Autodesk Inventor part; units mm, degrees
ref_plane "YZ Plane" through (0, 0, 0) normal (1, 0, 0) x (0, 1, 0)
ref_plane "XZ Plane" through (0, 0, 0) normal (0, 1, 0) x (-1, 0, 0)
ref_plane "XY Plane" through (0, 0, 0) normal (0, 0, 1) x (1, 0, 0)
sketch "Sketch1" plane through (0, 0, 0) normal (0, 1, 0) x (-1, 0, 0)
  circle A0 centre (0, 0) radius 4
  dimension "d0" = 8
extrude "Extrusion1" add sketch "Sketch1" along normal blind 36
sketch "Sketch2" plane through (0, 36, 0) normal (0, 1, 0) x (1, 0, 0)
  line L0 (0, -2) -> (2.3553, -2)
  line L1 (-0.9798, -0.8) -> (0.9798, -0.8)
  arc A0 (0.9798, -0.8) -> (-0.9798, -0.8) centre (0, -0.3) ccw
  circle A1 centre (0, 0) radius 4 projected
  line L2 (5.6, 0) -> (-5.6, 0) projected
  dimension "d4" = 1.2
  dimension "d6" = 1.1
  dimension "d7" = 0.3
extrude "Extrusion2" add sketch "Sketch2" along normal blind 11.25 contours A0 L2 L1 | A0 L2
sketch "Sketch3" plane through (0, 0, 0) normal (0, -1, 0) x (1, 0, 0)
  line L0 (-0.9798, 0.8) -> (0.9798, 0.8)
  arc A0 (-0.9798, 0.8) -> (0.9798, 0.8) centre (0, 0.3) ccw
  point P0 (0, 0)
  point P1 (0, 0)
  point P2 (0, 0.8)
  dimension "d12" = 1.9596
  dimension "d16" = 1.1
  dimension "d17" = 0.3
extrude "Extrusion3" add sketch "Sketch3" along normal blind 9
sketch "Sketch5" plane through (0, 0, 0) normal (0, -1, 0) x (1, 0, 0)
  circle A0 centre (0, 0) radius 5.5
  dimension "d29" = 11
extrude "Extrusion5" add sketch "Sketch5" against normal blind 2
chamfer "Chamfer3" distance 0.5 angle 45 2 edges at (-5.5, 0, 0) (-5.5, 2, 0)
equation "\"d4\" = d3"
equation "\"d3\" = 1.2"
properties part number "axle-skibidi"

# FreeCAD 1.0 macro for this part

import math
import FreeCAD as App
import Part
import Sketcher

V = App.Vector


def edges_at(feature, points):
    """Names of the edges that pass closest to the given points."""
    edges = feature.Shape.Edges
    near = lambda p: min(range(len(edges)), key=lambda i: edges[i].distToShape(Part.Vertex(*p))[0])
    return sorted({f"Edge{near(p) + 1}" for p in points})

doc = App.newDocument("Part")
body = doc.addObject("PartDesign::Body", "Body")

# Sketch on XZ plane
sketch1 = body.newObject("Sketcher::SketchObject", "Sketch")
sketch1.AttachmentSupport = (doc.getObject("XZ_Plane"), [""])
sketch1.MapMode = "FlatFace"
sketch1.addGeometry(Part.Circle(V(0, 0, 0), V(0, 0, 1), 4), False)
sketch1.addConstraint([
    Sketcher.Constraint("Coincident", 0, 3, -1, 1),
    Sketcher.Constraint("Diameter", 0, 8.0),
])
pad1 = body.newObject("PartDesign::Pad", "Pad")
pad1.Profile = sketch1
pad1.Length = 36
pad1.Reversed = True

# Sketch on XZ plane
sketch2 = body.newObject("Sketcher::SketchObject", "Sketch001")
sketch2.AttachmentSupport = (doc.getObject("XZ_Plane"), [""])
sketch2.MapMode = "FlatFace"
sketch2.AttachmentOffset = App.Placement(V(0, 0, -36), App.Rotation())
sketch2.addGeometry([
    Part.LineSegment(V(-1, 0.8, 0), V(1, 0.8, 0)),
    Part.ArcOfCircle(Part.Circle(V(0, 0.3, 0), V(0, 0, 1), 1.1), math.radians(153), math.radians(387)),
], False)
sketch2.addConstraint([
    Sketcher.Constraint("Coincident", 0, 1, 1, 1),
    Sketcher.Constraint("Coincident", 1, 2, 0, 2),
    Sketcher.Constraint("Horizontal", 0),
    Sketcher.Constraint("PointOnObject", 1, 3, -2),
    Sketcher.Constraint("Radius", 1, 1.1),
    Sketcher.Constraint("DistanceY", -1, 1, 1, 3, 0.3),
    Sketcher.Constraint("DistanceY", -1, 1, 0, 1, 0.8),
])
pad2 = body.newObject("PartDesign::Pad", "Pad001")
pad2.Profile = sketch2
pad2.Length = 11.25
pad2.Reversed = True

# Sketch on XZ plane
sketch3 = body.newObject("Sketcher::SketchObject", "Sketch002")
sketch3.AttachmentSupport = (doc.getObject("XZ_Plane"), [""])
sketch3.MapMode = "FlatFace"
sketch3.addGeometry([
    Part.LineSegment(V(1, 0.8, 0), V(-1, 0.8, 0)),
    Part.ArcOfCircle(Part.Circle(V(0, 0.3, 0), V(0, 0, 1), 1.1), math.radians(153), math.radians(387)),
], False)
sketch3.addConstraint([
    Sketcher.Constraint("Coincident", 0, 1, 1, 2),
    Sketcher.Constraint("Coincident", 1, 1, 0, 2),
    Sketcher.Constraint("Horizontal", 0),
    Sketcher.Constraint("PointOnObject", 1, 3, -2),
    Sketcher.Constraint("Radius", 1, 1.1),
    Sketcher.Constraint("DistanceY", -1, 1, 1, 3, 0.3),
    Sketcher.Constraint("DistanceX", 0, 2, 0, 1, 1.9596),
])
pad3 = body.newObject("PartDesign::Pad", "Pad002")
pad3.Profile = sketch3
pad3.Length = 9

# Sketch on XZ plane
sketch4 = body.newObject("Sketcher::SketchObject", "Sketch003")
sketch4.AttachmentSupport = (doc.getObject("XZ_Plane"), [""])
sketch4.MapMode = "FlatFace"
sketch4.addGeometry(Part.Circle(V(0, 0, 0), V(0, 0, 1), 6), False)
sketch4.addConstraint([
    Sketcher.Constraint("Coincident", 0, 3, -1, 1),
    Sketcher.Constraint("Diameter", 0, 11.0),
])
pad4 = body.newObject("PartDesign::Pad", "Pad003")
pad4.Profile = sketch4
pad4.Length = 2
pad4.Reversed = True
doc.recompute()

chamfer = body.newObject("PartDesign::Chamfer", "Chamfer")
chamfer.Base = (pad4, edges_at(pad4, [(-5.5, 0, 0), (-5.5, 2, 0)]))
chamfer.Size = 0.5

doc.recompute()
